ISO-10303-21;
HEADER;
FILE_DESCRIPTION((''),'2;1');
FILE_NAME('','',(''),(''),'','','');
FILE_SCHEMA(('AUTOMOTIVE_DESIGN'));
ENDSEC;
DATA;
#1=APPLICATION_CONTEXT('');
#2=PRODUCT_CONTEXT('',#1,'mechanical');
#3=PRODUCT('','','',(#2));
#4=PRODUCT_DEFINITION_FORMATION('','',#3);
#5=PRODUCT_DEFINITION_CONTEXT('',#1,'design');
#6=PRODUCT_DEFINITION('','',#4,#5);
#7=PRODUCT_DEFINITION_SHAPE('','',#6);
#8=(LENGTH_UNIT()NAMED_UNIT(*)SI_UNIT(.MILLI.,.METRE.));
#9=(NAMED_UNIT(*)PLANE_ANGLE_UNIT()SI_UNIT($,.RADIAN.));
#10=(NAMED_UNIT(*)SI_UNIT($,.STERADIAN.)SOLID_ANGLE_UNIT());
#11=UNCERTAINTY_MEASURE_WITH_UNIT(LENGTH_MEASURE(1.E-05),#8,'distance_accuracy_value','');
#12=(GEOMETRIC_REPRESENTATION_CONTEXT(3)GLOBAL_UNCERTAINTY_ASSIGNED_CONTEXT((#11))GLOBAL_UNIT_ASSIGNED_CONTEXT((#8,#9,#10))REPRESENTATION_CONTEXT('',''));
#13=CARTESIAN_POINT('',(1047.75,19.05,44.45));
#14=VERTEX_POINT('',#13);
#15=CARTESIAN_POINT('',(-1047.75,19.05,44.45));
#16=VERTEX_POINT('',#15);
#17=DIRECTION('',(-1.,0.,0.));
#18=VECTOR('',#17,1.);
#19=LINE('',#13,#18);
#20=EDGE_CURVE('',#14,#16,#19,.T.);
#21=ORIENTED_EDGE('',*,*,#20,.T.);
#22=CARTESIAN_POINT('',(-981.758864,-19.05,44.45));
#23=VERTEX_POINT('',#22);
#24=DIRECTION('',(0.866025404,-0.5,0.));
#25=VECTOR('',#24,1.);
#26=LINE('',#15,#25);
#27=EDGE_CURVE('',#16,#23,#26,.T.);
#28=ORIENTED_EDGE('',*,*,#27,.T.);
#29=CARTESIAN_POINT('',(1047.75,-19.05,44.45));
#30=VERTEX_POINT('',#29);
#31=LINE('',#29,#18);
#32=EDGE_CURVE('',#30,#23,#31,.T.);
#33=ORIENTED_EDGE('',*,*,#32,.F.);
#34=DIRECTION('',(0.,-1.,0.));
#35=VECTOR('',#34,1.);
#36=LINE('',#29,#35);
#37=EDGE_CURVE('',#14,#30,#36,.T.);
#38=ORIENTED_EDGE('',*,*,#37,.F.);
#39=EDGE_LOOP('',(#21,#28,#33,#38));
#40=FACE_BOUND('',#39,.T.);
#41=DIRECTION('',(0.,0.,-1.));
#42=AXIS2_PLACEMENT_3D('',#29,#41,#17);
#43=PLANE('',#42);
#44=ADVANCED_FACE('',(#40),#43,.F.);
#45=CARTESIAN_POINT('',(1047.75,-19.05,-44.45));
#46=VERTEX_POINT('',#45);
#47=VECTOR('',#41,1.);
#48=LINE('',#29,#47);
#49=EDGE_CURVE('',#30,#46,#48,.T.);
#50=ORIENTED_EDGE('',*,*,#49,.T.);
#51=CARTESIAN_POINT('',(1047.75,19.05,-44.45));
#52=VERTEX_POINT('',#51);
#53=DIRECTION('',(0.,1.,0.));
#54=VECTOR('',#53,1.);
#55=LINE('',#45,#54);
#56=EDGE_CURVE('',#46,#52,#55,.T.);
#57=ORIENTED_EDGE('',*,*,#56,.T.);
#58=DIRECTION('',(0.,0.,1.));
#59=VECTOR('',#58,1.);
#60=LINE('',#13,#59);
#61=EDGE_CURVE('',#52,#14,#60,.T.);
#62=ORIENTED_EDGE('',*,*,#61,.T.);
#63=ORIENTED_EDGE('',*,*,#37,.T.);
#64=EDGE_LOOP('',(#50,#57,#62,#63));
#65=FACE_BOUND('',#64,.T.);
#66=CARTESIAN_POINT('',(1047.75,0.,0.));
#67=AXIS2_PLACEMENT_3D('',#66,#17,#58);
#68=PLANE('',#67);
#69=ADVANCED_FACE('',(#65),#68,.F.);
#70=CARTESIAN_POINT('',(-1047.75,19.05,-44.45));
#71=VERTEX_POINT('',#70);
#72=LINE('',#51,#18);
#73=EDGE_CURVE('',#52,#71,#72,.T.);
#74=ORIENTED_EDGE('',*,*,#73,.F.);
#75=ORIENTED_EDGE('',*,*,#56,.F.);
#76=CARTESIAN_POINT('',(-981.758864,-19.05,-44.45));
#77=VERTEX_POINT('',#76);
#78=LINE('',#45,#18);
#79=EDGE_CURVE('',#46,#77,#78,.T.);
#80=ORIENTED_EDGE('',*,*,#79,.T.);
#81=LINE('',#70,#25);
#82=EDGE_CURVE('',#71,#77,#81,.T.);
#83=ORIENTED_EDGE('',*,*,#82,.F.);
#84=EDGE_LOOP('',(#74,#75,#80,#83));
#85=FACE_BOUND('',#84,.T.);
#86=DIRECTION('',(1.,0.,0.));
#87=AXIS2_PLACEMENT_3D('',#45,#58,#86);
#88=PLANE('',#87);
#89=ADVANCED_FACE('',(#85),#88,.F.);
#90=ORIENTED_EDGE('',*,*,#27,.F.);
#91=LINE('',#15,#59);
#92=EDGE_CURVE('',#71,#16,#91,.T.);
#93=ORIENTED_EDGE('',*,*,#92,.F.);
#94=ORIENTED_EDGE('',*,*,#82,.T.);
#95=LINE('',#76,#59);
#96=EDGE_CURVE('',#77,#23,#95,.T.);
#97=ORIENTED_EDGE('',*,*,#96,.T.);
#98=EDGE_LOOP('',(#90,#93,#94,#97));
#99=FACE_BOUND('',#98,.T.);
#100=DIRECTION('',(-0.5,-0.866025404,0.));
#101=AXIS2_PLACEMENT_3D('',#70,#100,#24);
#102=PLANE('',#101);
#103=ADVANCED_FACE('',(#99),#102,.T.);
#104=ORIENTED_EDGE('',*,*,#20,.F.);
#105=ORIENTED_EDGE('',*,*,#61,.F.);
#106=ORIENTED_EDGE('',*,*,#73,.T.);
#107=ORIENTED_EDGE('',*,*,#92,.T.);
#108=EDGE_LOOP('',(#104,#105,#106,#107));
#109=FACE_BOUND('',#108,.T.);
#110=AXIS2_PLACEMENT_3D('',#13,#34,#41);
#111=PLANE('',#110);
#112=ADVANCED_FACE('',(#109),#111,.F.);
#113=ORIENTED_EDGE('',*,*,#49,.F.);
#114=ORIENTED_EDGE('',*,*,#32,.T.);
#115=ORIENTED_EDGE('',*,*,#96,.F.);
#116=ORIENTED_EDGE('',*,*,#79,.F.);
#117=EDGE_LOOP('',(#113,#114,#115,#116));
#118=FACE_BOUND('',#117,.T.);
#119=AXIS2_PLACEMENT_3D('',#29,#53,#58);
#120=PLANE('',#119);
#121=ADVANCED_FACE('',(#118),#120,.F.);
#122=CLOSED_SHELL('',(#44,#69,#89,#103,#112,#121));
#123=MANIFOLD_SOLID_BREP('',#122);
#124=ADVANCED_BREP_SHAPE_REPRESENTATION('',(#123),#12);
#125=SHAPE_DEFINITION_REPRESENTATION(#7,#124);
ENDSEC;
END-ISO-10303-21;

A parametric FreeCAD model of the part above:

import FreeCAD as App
import Part
import Sketcher
from FreeCAD import Vector
Q = App.Units.Quantity


def add_polygon(sketch, points):
    """Adds a closed chain of lines whose ends are joined by coincident constraints."""
    first, n = sketch.GeometryCount, len(points)
    for a, b in zip(points, points[1:] + points[:1]):
        sketch.addGeometry(Part.LineSegment(App.Vector(*a, 0), App.Vector(*b, 0)), False)
    for i in range(n):
        sketch.addConstraint(Sketcher.Constraint("Coincident", first + i, 2, first + (i + 1) % n, 1))

doc = App.newDocument("Part")
params = doc.addObject("Spreadsheet::Sheet", "Params")
for row, (alias, value) in enumerate([
    ("sketch1_width", "1.5 in"),
    ("sketch1_height", "3.5 in"),
    ("pad1_length", "82.5 in"),
    ("sketch2_length", "3 in"),
    ("sketch2_height", "1.5 in"),
], start=1):
    params.set(f"A{row}", alias)
    params.set(f"B{row}", "=" + value)
    params.setAlias(f"B{row}", alias)

body = doc.addObject("PartDesign::Body", "Body")

# Sketch on YZ plane
sketch1 = body.newObject("Sketcher::SketchObject", "Sketch")
sketch1.AttachmentSupport = (doc.getObject("YZ_Plane"), [""])
sketch1.MapMode = "FlatFace"
add_polygon(sketch1, [(19, 44), (-19, 44), (-19, -44), (19, -44)])  # lines 0-3
sketch1.addConstraint([
    Sketcher.Constraint("Horizontal", 0),
    Sketcher.Constraint("Vertical", 1),
    Sketcher.Constraint("Horizontal", 2),
    Sketcher.Constraint("Vertical", 3),
    Sketcher.Constraint("Symmetric", 0, 2, 2, 2, -1, 1),
    Sketcher.Constraint("DistanceX", 0, 2, 0, 1, Q("1.5 in")),
    Sketcher.Constraint("DistanceY", 1, 2, 1, 1, Q("3.5 in")),
])
sketch1.setExpression("Constraints[9]", "Params.sketch1_width")
sketch1.setExpression("Constraints[10]", "Params.sketch1_height")
pad1 = body.newObject("PartDesign::Pad", "Pad")
pad1.Profile = sketch1
pad1.setExpression("Length", "Params.pad1_length")
pad1.Midplane = True

# Sketch on XY plane
sketch2 = body.newObject("Sketcher::SketchObject", "Sketch001")
sketch2.AttachmentSupport = (doc.getObject("XY_Plane"), [""])
sketch2.MapMode = "FlatFace"
add_polygon(sketch2, [(-982, -19), (-1048, 19), (-1048, -19)])  # lines 0-2
sketch2.addConstraint([
    Sketcher.Constraint("Vertical", 1),
    Sketcher.Constraint("Horizontal", 2),
    Sketcher.Constraint("Distance", 0, Q("3 in")),
    Sketcher.Constraint("DistanceY", 1, 2, 1, 1, Q("1.5 in")),
    Sketcher.Constraint("DistanceX", 0, 2, -1, 1, Q("41.25 in")),
    Sketcher.Constraint("DistanceY", -1, 1, 0, 2, Q("0.75 in")),
])
sketch2.setExpression("Constraints[5]", "Params.sketch2_length")
sketch2.setExpression("Constraints[6]", "Params.sketch2_height")
pocket1 = body.newObject("PartDesign::Pocket", "Pocket")
pocket1.Profile = sketch2
pocket1.Type = "ThroughAll"
pocket1.Midplane = True

doc.recompute()
